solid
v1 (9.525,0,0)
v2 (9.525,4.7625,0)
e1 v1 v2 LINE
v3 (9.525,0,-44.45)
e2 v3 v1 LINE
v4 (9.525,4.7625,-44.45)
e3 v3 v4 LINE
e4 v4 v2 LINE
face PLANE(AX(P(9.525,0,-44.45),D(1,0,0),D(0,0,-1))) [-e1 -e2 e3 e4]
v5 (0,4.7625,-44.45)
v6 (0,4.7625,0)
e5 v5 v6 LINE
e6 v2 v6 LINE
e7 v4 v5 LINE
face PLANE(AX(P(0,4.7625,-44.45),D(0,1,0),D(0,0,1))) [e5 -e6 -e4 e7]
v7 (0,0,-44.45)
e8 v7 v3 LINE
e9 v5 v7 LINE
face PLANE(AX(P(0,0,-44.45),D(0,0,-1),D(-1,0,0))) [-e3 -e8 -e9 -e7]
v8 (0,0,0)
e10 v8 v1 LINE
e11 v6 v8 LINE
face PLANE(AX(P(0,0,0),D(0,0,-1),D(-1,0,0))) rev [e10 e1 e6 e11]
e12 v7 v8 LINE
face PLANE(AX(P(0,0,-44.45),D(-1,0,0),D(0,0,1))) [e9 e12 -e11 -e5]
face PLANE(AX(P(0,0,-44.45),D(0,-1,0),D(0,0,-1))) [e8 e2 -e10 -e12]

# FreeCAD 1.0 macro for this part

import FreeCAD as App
import Part
import Sketcher
Q = App.Units.Quantity


def add_polygon(sketch, points):
    """Adds a closed chain of lines whose ends are joined by coincident constraints."""
    first, n = sketch.GeometryCount, len(points)
    for a, b in zip(points, points[1:] + points[:1]):
        sketch.addGeometry(Part.LineSegment(App.Vector(*a, 0), App.Vector(*b, 0)), False)
    for i in range(n):
        sketch.addConstraint(Sketcher.Constraint("Coincident", first + i, 2, first + (i + 1) % n, 1))

doc = App.newDocument("Part")
body = doc.addObject("PartDesign::Body", "Body")

# Sketch on XY plane
sketch1 = body.newObject("Sketcher::SketchObject", "Sketch")
sketch1.AttachmentSupport = (doc.getObject("XY_Plane"), [""])
sketch1.MapMode = "FlatFace"
add_polygon(sketch1, [(0, 4.7625), (0, 0), (9.525, 0), (9.525, 4.7625)])  # lines 0-3
sketch1.addConstraint(Sketcher.Constraint("Vertical", 0))
sketch1.addConstraint(Sketcher.Constraint("Horizontal", 1))
sketch1.addConstraint(Sketcher.Constraint("Vertical", 2))
sketch1.addConstraint(Sketcher.Constraint("Horizontal", 3))
sketch1.addConstraint(Sketcher.Constraint("Coincident", 0, 2, -1, 1))
sketch1.addConstraint(Sketcher.Constraint("DistanceX", 1, 1, 1, 2, Q("0.375 in")))
sketch1.addConstraint(Sketcher.Constraint("DistanceY", 0, 2, 0, 1, Q("0.1875 in")))
pad1 = body.newObject("PartDesign::Pad", "Pad")
pad1.Profile = sketch1
pad1.Length = Q("1.75 in")
pad1.Reversed = True

doc.recompute()
